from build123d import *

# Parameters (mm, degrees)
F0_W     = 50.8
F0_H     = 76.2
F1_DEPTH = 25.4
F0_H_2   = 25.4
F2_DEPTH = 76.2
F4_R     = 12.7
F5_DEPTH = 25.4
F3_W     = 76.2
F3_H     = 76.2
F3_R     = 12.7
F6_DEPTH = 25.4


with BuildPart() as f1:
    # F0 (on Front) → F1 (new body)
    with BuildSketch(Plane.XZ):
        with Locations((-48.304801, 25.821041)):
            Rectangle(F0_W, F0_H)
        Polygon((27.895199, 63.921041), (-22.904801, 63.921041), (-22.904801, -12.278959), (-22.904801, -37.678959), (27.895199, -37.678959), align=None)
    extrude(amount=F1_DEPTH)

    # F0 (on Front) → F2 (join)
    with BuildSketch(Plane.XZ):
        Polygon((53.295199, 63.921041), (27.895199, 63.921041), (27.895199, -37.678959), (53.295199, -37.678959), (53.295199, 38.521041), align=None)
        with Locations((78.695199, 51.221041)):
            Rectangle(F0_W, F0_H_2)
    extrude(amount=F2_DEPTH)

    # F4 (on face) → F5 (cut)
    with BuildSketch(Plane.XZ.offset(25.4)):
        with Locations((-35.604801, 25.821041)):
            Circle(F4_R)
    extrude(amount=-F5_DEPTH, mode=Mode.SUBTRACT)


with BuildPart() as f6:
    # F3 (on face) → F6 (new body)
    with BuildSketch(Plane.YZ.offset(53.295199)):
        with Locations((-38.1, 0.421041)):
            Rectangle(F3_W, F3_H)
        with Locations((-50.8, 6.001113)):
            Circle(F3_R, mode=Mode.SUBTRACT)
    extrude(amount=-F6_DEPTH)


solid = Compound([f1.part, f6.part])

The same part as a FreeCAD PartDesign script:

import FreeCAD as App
import Part
import Sketcher
Q = App.Units.Quantity

doc = App.newDocument("Part")
body = doc.addObject("PartDesign::Body", "Body")

# Sketch on XZ plane
sketch1 = doc.addObject("Sketcher::SketchObject", "Sketch")
body.addObject(sketch1)
sketch1.AttachmentSupport = (doc.XZ_Plane, [""])
sketch1.MapMode = "FlatFace"
sketch1.addGeometry(Part.LineSegment(App.Vector(-73.704801, 63.921041, 0), App.Vector(-73.704801, -12.278959, 0)), False)
sketch1.addGeometry(Part.LineSegment(App.Vector(-73.704801, -12.278959, 0), App.Vector(-22.904801, -12.278959, 0)), False)
sketch1.addGeometry(Part.LineSegment(App.Vector(-22.904801, -12.278959, 0), App.Vector(-22.904801, -37.678959, 0)), False)
sketch1.addGeometry(Part.LineSegment(App.Vector(-22.904801, -37.678959, 0), App.Vector(27.895199, -37.678959, 0)), False)
sketch1.addGeometry(Part.LineSegment(App.Vector(27.895199, -37.678959, 0), App.Vector(27.895199, 63.921041, 0)), False)
sketch1.addGeometry(Part.LineSegment(App.Vector(27.895199, 63.921041, 0), App.Vector(-73.704801, 63.921041, 0)), False)
sketch1.addConstraint(Sketcher.Constraint("Coincident", 0, 2, 1, 1))
sketch1.addConstraint(Sketcher.Constraint("Coincident", 1, 2, 2, 1))
sketch1.addConstraint(Sketcher.Constraint("Coincident", 2, 2, 3, 1))
sketch1.addConstraint(Sketcher.Constraint("Coincident", 3, 2, 4, 1))
sketch1.addConstraint(Sketcher.Constraint("Coincident", 4, 2, 5, 1))
sketch1.addConstraint(Sketcher.Constraint("Coincident", 5, 2, 0, 1))
sketch1.addConstraint(Sketcher.Constraint("Vertical", 0))
sketch1.addConstraint(Sketcher.Constraint("Horizontal", 1))
sketch1.addConstraint(Sketcher.Constraint("Vertical", 2))
sketch1.addConstraint(Sketcher.Constraint("Horizontal", 3))
sketch1.addConstraint(Sketcher.Constraint("Vertical", 4))
sketch1.addConstraint(Sketcher.Constraint("Horizontal", 5))
sketch1.addConstraint(Sketcher.Constraint("Equal", 1, 3))
sketch1.addConstraint(Sketcher.Constraint("Equal", 5, 4))
sketch1.addConstraint(Sketcher.Constraint("DistanceX", 1, 1, 1, 2, Q("2 in")))
sketch1.addConstraint(Sketcher.Constraint("DistanceY", 0, 2, 0, 1, Q("3 in")))
sketch1.addConstraint(Sketcher.Constraint("DistanceX", 0, 2, -1, 1, Q("73.704801 mm")))
sketch1.addConstraint(Sketcher.Constraint("DistanceY", 0, 2, -1, 1, Q("12.278959 mm")))
pad1 = doc.addObject("PartDesign::Pad", "Pad")
body.addObject(pad1)
pad1.Profile = sketch1
pad1.Length = Q("1 in")

# Sketch on XZ plane
sketch2 = doc.addObject("Sketcher::SketchObject", "Sketch001")
body.addObject(sketch2)
sketch2.AttachmentSupport = (doc.XZ_Plane, [""])
sketch2.MapMode = "FlatFace"
sketch2.addGeometry(Part.LineSegment(App.Vector(27.895199, 63.921041, 0), App.Vector(27.895199, -37.678959, 0)), False)
sketch2.addGeometry(Part.LineSegment(App.Vector(27.895199, -37.678959, 0), App.Vector(53.295199, -37.678959, 0)), False)
sketch2.addGeometry(Part.LineSegment(App.Vector(53.295199, -37.678959, 0), App.Vector(53.295199, 38.521041, 0)), False)
sketch2.addGeometry(Part.LineSegment(App.Vector(53.295199, 38.521041, 0), App.Vector(104.095199, 38.521041, 0)), False)
sketch2.addGeometry(Part.LineSegment(App.Vector(104.095199, 38.521041, 0), App.Vector(104.095199, 63.921041, 0)), False)
sketch2.addGeometry(Part.LineSegment(App.Vector(104.095199, 63.921041, 0), App.Vector(27.895199, 63.921041, 0)), False)
sketch2.addConstraint(Sketcher.Constraint("Coincident", 0, 2, 1, 1))
sketch2.addConstraint(Sketcher.Constraint("Coincident", 1, 2, 2, 1))
sketch2.addConstraint(Sketcher.Constraint("Coincident", 2, 2, 3, 1))
sketch2.addConstraint(Sketcher.Constraint("Coincident", 3, 2, 4, 1))
sketch2.addConstraint(Sketcher.Constraint("Coincident", 4, 2, 5, 1))
sketch2.addConstraint(Sketcher.Constraint("Coincident", 5, 2, 0, 1))
sketch2.addConstraint(Sketcher.Constraint("Vertical", 0))
sketch2.addConstraint(Sketcher.Constraint("Horizontal", 1))
sketch2.addConstraint(Sketcher.Constraint("Vertical", 2))
sketch2.addConstraint(Sketcher.Constraint("Horizontal", 3))
sketch2.addConstraint(Sketcher.Constraint("Vertical", 4))
sketch2.addConstraint(Sketcher.Constraint("Horizontal", 5))
sketch2.addConstraint(Sketcher.Constraint("Equal", 5, 2))
sketch2.addConstraint(Sketcher.Constraint("Equal", 1, 4))
sketch2.addConstraint(Sketcher.Constraint("DistanceX", 1, 1, 1, 2, Q("1 in")))
sketch2.addConstraint(Sketcher.Constraint("DistanceX", 3, 1, 3, 2, Q("2 in")))
sketch2.addConstraint(Sketcher.Constraint("DistanceX", -1, 1, 0, 2, Q("27.895199 mm")))
sketch2.addConstraint(Sketcher.Constraint("DistanceY", 0, 2, -1, 1, Q("37.678959 mm")))
pad2 = doc.addObject("PartDesign::Pad", "Pad001")
body.addObject(pad2)
pad2.Profile = sketch2
pad2.Length = Q("3 in")

# Sketch on XZ plane
sketch3 = doc.addObject("Sketcher::SketchObject", "Sketch002")
body.addObject(sketch3)
sketch3.AttachmentSupport = (doc.XZ_Plane, [""])
sketch3.MapMode = "FlatFace"
sketch3.AttachmentOffset = App.Placement(App.Vector(0, 0, 1 * 25.4), App.Rotation())
sketch3.addGeometry(Part.Circle(App.Vector(-35.604801, 25.821041, 0), App.Vector(0, 0, 1), 12.7), False)
sketch3.addConstraint(Sketcher.Constraint("Diameter", 0, Q("1 in")))
sketch3.addConstraint(Sketcher.Constraint("DistanceX", 0, 3, -1, 1, Q("35.604801 mm")))
sketch3.addConstraint(Sketcher.Constraint("DistanceY", -1, 1, 0, 3, Q("25.821041 mm")))
pocket1 = doc.addObject("PartDesign::Pocket", "Pocket")
body.addObject(pocket1)
pocket1.Profile = sketch3
pocket1.Length = Q("1 in")
body2 = doc.addObject("PartDesign::Body", "Body001")

# Sketch on YZ plane
sketch4 = doc.addObject("Sketcher::SketchObject", "Sketch003")
body2.addObject(sketch4)
sketch4.AttachmentSupport = (doc.getObject("YZ_Plane001"), [""])
sketch4.MapMode = "FlatFace"
sketch4.AttachmentOffset = App.Placement(App.Vector(0, 0, 53.295199), App.Rotation())
sketch4.addGeometry(Part.LineSegment(App.Vector(-76.2, 38.521041, 0), App.Vector(-76.2, -37.678959, 0)), False)
sketch4.addGeometry(Part.LineSegment(App.Vector(-76.2, -37.678959, 0), App.Vector(0, -37.678959, 0)), False)
sketch4.addGeometry(Part.LineSegment(App.Vector(0, -37.678959, 0), App.Vector(0, 38.521041, 0)), False)
sketch4.addGeometry(Part.LineSegment(App.Vector(0, 38.521041, 0), App.Vector(-76.2, 38.521041, 0)), False)
sketch4.addGeometry(Part.Circle(App.Vector(-50.8, 6.001113, 0), App.Vector(0, 0, 1), 12.7), False)
sketch4.addConstraint(Sketcher.Constraint("Coincident", 0, 2, 1, 1))
sketch4.addConstraint(Sketcher.Constraint("Coincident", 1, 2, 2, 1))
sketch4.addConstraint(Sketcher.Constraint("Coincident", 2, 2, 3, 1))
sketch4.addConstraint(Sketcher.Constraint("Coincident", 3, 2, 0, 1))
sketch4.addConstraint(Sketcher.Constraint("Vertical", 0))
sketch4.addConstraint(Sketcher.Constraint("Horizontal", 1))
sketch4.addConstraint(Sketcher.Constraint("Vertical", 2))
sketch4.addConstraint(Sketcher.Constraint("Horizontal", 3))
sketch4.addConstraint(Sketcher.Constraint("PointOnObject", 1, 2, -2))
sketch4.addConstraint(Sketcher.Constraint("Equal", 3, 0))
sketch4.addConstraint(Sketcher.Constraint("Diameter", 4, Q("1 in")))
sketch4.addConstraint(Sketcher.Constraint("DistanceX", 1, 1, 1, 2, Q("3 in")))
sketch4.addConstraint(Sketcher.Constraint("DistanceX", 4, 3, -1, 1, Q("2 in")))
sketch4.addConstraint(Sketcher.Constraint("DistanceY", 0, 2, -1, 1, Q("37.678959 mm")))
sketch4.addConstraint(Sketcher.Constraint("DistanceY", 0, 2, 4, 3, Q("43.680072 mm")))
pad3 = doc.addObject("PartDesign::Pad", "Pad002")
body2.addObject(pad3)
pad3.Profile = sketch4
pad3.Length = Q("1 in")
pad3.Reversed = True

doc.recompute()
